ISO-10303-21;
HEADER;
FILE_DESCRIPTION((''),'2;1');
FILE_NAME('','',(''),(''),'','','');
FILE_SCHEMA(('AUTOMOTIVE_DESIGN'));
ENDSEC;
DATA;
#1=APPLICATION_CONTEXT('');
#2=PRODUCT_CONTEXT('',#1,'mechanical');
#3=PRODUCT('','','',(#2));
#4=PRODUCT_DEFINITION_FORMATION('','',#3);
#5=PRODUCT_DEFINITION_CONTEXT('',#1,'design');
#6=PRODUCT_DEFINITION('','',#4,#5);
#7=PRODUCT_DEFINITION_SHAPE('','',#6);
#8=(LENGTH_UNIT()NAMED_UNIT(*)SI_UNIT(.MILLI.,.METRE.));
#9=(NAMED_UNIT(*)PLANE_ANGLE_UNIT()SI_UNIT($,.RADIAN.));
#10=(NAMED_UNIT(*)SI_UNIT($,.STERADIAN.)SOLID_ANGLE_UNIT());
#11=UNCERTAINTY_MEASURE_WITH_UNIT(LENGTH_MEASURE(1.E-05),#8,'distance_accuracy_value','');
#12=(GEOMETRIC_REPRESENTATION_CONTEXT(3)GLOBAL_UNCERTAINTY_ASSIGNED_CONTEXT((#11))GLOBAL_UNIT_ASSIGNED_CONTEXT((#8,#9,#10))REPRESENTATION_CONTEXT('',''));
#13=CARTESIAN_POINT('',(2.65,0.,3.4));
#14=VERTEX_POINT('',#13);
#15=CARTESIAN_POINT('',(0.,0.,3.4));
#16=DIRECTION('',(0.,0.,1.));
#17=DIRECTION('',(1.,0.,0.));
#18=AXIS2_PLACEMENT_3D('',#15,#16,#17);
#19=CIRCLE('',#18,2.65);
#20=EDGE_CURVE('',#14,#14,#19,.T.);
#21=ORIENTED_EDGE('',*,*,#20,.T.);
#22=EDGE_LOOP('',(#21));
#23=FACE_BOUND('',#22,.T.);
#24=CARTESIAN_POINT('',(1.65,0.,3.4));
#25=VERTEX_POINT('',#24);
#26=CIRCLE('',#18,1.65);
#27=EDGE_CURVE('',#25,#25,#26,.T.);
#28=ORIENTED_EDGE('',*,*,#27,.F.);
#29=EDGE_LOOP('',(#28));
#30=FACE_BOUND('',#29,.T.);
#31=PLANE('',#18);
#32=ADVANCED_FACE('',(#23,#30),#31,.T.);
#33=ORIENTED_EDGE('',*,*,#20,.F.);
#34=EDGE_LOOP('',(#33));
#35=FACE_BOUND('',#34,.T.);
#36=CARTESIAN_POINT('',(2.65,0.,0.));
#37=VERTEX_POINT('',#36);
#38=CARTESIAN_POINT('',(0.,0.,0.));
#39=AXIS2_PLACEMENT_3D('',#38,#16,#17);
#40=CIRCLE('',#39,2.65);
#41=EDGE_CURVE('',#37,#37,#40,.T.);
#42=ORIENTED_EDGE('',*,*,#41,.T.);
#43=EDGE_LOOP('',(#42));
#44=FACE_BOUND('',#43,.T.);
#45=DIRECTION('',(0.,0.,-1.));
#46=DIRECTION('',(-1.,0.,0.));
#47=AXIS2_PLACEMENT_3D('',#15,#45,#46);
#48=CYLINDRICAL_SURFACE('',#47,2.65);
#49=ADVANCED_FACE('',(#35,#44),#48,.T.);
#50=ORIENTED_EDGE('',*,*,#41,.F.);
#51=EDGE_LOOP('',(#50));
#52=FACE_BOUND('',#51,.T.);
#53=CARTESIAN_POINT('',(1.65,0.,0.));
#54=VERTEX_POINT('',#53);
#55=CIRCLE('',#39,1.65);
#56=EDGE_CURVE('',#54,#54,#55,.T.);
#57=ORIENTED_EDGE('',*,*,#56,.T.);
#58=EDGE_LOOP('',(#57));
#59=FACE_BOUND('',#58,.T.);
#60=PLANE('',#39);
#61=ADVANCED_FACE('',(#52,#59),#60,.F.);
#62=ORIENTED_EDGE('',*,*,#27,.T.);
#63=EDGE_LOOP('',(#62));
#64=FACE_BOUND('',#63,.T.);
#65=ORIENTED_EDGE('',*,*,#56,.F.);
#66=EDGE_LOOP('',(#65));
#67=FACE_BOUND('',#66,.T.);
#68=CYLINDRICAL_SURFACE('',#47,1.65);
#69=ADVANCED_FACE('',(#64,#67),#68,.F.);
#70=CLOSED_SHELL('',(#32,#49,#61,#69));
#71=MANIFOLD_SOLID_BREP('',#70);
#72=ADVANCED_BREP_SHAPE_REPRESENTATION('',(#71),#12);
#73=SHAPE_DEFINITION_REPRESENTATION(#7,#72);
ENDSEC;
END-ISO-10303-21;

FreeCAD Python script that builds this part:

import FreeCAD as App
import Part
import Sketcher

doc = App.newDocument("Part")
body = doc.addObject("PartDesign::Body", "Body")

# Sketch on XY plane
sketch1 = body.newObject("Sketcher::SketchObject", "Sketch")
sketch1.AttachmentSupport = (doc.getObject("XY_Plane"), [""])
sketch1.MapMode = "FlatFace"
sketch1.addGeometry([
    Part.Circle(App.Vector(0, 0, 0), App.Vector(0, 0, 1), 2.6),
    Part.Circle(App.Vector(0, 0, 0), App.Vector(0, 0, 1), 1.6),
], False)
sketch1.addConstraint([
    Sketcher.Constraint("Coincident", 0, 3, -1, 1),
    Sketcher.Constraint("Coincident", 1, 3, -1, 1),
    Sketcher.Constraint("Diameter", 0, 5.3),
    Sketcher.Constraint("Diameter", 1, 3.3),
])
pad1 = body.newObject("PartDesign::Pad", "Pad")
pad1.Profile = sketch1
pad1.Length = 3.4

doc.recompute()
